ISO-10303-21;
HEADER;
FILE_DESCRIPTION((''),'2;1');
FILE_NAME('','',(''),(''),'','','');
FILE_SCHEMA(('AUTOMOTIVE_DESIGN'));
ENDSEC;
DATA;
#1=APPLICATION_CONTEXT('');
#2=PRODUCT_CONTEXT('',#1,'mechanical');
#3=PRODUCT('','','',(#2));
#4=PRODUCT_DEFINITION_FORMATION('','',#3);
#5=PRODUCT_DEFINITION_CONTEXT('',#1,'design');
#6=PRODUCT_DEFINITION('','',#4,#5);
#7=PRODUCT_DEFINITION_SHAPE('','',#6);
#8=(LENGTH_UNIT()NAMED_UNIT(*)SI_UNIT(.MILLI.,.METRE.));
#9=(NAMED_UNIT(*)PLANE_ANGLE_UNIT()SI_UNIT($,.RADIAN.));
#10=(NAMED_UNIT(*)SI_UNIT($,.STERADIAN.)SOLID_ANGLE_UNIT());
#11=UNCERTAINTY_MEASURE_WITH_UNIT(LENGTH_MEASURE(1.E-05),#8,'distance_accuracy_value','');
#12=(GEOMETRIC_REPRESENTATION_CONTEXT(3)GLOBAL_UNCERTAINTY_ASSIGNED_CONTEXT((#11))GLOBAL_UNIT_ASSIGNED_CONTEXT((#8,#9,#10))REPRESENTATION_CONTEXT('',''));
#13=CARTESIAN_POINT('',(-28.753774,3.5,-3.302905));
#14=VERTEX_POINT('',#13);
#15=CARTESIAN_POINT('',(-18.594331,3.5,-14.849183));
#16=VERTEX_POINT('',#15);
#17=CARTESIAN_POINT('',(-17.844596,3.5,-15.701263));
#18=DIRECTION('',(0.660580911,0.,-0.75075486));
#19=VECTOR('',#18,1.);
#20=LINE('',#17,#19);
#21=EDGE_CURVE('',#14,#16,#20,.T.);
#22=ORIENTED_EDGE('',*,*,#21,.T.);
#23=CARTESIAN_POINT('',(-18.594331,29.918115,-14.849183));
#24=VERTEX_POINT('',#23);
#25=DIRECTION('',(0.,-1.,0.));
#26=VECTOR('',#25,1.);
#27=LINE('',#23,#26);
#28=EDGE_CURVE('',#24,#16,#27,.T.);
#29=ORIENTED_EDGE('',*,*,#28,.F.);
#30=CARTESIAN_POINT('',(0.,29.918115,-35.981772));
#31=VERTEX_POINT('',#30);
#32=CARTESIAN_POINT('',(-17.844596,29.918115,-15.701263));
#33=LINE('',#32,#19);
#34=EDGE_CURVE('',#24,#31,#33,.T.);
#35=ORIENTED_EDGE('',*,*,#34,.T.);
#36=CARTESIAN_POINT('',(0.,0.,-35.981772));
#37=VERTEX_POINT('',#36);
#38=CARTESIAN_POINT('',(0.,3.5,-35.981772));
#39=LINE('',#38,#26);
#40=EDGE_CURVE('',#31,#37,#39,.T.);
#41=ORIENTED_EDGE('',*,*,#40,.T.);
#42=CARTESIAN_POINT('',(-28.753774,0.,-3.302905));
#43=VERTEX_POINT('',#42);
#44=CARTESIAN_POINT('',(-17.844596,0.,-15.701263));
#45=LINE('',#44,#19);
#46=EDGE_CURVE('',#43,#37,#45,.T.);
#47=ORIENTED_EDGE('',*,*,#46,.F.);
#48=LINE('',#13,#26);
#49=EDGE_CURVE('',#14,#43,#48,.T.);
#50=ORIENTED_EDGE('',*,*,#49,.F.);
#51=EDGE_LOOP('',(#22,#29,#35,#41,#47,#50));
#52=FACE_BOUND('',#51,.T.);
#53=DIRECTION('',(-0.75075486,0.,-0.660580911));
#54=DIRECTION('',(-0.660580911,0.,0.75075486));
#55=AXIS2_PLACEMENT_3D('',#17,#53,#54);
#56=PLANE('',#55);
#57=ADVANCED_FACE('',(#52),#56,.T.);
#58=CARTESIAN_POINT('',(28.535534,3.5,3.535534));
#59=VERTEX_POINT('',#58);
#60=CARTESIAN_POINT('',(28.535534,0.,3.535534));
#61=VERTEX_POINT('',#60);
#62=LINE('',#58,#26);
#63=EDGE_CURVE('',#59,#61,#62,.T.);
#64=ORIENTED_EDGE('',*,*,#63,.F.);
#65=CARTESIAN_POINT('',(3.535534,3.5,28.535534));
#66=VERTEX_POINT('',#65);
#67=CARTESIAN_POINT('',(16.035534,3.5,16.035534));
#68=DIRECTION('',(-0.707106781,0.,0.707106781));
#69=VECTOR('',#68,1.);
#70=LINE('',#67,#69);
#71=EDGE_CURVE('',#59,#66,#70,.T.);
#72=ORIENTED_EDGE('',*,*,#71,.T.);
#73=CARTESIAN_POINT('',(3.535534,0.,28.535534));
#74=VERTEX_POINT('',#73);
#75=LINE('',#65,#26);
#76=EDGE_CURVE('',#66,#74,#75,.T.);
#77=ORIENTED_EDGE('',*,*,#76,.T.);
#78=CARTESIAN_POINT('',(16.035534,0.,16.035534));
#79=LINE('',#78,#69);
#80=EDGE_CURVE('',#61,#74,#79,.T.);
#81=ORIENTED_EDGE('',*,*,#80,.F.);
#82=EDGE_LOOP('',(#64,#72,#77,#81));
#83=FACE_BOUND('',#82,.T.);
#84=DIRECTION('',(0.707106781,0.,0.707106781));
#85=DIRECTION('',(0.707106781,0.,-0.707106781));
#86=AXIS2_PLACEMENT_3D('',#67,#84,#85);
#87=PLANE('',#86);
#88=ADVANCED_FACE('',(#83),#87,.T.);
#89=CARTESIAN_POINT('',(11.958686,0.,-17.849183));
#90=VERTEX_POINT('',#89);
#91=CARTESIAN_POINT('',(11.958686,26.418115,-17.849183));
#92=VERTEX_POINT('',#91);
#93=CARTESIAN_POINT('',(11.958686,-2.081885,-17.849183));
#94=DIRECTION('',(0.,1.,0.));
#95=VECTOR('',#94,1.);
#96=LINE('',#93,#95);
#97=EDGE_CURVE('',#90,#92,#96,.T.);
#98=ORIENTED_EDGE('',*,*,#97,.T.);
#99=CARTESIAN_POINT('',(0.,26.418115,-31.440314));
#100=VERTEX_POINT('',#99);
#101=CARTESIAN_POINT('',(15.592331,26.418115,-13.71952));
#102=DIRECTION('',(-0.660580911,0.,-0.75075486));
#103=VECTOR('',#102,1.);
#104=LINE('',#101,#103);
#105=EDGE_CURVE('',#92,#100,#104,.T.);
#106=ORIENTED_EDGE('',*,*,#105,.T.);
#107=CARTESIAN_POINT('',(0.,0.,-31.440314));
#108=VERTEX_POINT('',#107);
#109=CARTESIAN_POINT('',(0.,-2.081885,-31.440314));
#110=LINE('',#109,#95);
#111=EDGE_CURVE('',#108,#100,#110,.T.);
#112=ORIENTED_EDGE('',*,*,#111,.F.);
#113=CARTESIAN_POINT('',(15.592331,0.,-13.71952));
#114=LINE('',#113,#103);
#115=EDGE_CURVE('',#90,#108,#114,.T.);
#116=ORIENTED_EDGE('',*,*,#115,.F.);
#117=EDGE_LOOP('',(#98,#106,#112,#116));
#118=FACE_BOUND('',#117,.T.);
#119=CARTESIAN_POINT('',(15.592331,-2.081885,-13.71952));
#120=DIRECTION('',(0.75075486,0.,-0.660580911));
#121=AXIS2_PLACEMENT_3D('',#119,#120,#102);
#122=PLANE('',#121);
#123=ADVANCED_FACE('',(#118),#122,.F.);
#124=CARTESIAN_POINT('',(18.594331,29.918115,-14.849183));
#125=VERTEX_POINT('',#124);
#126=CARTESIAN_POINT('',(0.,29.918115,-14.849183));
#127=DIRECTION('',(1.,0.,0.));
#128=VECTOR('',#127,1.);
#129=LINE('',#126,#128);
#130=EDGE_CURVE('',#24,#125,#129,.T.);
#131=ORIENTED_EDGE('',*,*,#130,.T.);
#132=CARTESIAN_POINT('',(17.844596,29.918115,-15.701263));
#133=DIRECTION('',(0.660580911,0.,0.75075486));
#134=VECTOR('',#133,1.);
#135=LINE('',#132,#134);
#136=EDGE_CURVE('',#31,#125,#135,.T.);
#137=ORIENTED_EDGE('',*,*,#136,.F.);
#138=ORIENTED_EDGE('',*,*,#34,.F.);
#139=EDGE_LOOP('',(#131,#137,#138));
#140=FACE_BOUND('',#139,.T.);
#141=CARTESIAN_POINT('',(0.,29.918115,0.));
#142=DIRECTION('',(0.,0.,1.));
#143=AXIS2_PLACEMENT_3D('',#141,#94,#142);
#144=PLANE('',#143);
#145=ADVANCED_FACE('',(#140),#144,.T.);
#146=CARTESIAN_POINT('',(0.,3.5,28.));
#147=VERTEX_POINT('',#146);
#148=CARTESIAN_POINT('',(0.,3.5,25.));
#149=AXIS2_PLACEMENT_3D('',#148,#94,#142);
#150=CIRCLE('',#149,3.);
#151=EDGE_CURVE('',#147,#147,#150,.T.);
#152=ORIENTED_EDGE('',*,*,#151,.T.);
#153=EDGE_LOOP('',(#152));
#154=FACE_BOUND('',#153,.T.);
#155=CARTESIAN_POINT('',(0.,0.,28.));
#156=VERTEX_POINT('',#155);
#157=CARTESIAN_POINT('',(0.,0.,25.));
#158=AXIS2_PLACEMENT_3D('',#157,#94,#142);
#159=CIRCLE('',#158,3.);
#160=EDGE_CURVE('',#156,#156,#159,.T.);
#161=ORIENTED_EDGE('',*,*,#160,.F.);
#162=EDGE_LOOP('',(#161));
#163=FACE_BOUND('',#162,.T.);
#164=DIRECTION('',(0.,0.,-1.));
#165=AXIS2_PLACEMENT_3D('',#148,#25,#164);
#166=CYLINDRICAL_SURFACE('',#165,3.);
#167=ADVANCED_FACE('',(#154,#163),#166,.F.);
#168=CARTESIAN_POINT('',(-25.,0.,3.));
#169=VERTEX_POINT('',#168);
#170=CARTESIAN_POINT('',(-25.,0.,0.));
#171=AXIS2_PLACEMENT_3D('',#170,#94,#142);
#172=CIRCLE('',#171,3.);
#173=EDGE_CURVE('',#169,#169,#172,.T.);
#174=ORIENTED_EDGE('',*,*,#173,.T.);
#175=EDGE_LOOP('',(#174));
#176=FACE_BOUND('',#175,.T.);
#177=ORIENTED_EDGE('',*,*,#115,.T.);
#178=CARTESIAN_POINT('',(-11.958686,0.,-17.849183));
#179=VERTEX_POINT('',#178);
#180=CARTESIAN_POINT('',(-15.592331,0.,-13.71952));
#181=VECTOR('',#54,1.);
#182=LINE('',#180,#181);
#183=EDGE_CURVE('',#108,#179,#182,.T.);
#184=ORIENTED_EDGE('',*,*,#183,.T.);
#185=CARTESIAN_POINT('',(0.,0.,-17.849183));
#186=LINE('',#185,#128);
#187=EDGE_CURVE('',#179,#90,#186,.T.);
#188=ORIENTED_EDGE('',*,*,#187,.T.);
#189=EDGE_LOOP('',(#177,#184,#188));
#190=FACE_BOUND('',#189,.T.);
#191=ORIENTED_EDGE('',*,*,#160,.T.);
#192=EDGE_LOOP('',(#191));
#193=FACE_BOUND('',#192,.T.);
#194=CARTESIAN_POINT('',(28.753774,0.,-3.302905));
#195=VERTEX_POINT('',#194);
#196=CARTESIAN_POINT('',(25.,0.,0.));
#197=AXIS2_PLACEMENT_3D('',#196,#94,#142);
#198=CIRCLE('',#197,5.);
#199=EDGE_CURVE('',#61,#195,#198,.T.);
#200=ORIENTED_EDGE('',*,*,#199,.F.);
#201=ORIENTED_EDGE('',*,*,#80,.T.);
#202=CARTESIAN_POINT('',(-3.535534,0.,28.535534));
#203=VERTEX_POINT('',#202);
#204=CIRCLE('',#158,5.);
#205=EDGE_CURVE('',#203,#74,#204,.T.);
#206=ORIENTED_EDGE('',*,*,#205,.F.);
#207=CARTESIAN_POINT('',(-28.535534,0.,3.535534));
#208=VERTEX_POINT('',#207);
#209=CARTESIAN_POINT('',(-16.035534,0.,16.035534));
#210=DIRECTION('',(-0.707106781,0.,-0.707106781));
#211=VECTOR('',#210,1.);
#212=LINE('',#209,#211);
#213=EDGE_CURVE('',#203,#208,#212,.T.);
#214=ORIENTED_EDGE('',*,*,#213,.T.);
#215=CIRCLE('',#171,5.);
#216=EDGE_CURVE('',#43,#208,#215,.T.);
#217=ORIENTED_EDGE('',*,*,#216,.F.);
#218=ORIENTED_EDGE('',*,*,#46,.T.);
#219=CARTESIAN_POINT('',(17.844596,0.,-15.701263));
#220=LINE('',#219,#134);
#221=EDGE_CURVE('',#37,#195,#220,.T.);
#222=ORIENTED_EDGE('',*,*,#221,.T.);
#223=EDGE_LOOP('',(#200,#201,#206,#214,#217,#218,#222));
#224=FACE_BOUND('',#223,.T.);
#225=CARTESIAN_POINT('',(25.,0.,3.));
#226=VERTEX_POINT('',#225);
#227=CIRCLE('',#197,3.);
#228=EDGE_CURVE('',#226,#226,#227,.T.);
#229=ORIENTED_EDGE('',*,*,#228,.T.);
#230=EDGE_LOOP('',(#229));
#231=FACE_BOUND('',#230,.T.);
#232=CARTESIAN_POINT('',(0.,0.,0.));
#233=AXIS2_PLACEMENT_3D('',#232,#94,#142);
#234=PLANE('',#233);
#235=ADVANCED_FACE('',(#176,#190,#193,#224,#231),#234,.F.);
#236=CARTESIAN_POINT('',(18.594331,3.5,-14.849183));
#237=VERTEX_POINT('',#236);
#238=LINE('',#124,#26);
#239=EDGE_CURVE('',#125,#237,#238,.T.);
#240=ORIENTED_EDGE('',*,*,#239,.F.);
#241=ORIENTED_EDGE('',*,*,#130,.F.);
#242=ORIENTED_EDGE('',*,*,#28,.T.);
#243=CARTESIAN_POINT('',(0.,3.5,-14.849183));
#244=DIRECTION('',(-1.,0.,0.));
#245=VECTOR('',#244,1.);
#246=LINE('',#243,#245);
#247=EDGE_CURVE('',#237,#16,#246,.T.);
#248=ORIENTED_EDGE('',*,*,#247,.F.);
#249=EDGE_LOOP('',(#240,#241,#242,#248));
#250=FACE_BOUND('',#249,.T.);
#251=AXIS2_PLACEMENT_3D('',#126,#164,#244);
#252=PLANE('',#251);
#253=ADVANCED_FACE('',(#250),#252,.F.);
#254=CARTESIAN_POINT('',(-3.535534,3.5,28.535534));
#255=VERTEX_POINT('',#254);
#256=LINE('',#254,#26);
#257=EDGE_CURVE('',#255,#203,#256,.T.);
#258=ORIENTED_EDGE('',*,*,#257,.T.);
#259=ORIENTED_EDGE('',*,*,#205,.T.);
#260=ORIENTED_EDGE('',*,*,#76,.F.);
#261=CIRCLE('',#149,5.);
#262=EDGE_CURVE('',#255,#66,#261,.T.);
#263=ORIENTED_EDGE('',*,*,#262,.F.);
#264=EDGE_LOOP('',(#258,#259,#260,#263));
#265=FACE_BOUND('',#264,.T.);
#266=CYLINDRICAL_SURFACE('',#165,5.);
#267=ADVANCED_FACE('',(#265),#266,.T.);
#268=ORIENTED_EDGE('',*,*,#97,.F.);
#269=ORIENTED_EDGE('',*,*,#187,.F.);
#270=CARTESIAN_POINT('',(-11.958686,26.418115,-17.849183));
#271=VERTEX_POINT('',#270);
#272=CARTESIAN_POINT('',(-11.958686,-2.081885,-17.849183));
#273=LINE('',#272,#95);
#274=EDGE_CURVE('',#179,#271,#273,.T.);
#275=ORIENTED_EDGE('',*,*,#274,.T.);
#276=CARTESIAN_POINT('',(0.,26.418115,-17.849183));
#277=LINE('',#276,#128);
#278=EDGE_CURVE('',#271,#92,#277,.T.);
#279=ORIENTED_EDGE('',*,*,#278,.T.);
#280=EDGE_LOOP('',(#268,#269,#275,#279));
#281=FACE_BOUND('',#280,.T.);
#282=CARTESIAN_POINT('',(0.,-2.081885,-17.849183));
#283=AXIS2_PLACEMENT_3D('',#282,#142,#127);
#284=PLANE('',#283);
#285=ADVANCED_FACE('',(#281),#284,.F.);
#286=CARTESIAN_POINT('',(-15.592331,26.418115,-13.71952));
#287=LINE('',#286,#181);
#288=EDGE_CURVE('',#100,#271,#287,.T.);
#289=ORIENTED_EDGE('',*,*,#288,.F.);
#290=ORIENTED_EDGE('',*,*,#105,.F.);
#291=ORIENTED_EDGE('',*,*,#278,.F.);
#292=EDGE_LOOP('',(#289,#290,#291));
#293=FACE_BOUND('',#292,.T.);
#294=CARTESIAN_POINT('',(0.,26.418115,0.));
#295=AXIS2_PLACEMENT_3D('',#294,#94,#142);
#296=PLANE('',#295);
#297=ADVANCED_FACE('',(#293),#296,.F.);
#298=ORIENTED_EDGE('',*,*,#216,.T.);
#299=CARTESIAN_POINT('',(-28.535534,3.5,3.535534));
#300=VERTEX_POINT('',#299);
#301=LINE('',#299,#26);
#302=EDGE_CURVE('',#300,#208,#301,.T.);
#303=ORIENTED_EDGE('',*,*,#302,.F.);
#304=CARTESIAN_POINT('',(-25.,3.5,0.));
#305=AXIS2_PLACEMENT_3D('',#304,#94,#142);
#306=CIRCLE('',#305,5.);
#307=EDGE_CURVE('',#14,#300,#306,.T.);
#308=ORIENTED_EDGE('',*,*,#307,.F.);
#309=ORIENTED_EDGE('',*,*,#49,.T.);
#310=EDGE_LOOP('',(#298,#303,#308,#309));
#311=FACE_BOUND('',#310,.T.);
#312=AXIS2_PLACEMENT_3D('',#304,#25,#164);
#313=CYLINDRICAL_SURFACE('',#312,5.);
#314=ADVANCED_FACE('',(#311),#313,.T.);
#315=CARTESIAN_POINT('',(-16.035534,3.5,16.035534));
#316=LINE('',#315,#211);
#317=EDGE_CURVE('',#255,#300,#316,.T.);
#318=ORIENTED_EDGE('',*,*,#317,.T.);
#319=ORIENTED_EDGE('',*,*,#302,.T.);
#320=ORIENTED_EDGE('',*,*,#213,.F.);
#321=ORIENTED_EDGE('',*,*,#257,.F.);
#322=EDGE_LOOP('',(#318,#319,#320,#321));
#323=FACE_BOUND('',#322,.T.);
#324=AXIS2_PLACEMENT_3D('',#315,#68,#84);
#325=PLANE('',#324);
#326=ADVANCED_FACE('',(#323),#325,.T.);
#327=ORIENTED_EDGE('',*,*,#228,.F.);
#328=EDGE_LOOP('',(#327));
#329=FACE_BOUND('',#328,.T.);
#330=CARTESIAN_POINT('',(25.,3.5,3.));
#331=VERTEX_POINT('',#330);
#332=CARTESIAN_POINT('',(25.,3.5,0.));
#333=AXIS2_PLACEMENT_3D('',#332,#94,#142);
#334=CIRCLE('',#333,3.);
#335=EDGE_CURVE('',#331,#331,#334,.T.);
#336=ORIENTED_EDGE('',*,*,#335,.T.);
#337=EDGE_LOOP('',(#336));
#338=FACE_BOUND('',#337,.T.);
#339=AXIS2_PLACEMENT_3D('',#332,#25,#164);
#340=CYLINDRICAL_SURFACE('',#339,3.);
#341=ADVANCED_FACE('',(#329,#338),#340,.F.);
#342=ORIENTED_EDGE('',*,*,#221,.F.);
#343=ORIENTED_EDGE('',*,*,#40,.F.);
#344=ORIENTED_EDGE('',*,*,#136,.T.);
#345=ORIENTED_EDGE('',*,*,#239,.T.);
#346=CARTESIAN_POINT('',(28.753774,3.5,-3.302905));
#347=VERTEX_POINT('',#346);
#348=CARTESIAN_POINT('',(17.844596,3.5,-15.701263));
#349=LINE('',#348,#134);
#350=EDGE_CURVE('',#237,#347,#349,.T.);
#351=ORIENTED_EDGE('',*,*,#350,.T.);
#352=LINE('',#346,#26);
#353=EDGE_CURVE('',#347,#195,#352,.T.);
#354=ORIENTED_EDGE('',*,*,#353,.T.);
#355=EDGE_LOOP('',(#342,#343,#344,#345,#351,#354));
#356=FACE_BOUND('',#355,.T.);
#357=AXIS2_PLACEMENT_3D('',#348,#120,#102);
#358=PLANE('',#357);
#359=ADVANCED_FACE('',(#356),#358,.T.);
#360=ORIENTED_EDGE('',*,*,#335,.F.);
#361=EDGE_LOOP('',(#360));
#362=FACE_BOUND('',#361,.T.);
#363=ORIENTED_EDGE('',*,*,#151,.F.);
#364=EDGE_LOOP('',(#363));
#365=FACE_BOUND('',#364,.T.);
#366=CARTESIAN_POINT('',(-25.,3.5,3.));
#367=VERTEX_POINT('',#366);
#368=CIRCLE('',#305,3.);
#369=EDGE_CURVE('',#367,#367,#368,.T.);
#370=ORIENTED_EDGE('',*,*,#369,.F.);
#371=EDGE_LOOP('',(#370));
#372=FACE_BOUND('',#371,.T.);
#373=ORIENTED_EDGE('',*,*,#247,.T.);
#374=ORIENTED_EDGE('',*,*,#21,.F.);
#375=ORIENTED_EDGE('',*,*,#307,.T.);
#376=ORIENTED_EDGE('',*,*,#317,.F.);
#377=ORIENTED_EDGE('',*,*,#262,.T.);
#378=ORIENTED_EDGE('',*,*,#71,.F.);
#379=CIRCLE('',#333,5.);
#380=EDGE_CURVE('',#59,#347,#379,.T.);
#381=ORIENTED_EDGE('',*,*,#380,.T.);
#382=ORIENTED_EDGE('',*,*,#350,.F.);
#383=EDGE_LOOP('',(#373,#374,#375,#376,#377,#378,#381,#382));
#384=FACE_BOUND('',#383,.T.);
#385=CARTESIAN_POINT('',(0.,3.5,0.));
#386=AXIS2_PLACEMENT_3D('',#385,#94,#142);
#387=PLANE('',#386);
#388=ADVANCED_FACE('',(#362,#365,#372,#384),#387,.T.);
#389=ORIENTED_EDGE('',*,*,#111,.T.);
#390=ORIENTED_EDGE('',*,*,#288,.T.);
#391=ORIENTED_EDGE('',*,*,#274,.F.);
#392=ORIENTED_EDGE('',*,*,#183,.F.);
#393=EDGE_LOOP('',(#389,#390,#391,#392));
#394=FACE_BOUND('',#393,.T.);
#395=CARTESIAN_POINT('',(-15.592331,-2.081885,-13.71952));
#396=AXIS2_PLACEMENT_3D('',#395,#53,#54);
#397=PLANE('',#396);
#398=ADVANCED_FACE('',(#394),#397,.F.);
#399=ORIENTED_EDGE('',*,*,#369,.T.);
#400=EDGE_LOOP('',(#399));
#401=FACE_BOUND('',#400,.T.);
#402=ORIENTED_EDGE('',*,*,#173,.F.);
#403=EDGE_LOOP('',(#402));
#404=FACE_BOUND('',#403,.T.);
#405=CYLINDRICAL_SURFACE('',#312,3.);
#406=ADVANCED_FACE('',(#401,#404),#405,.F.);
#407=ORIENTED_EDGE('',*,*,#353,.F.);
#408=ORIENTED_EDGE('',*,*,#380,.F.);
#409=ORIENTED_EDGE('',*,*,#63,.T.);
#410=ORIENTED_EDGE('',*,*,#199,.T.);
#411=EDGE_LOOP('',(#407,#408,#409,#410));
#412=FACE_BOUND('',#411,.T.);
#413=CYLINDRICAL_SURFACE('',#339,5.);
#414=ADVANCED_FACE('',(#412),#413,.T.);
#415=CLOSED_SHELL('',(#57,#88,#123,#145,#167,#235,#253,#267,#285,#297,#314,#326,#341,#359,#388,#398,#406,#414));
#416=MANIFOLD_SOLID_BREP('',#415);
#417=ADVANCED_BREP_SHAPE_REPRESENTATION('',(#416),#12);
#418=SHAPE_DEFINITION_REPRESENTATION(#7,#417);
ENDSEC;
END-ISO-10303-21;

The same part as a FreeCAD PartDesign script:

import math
import FreeCAD as App
import Part
import Sketcher
from FreeCAD import Vector

doc = App.newDocument("Part")
body = doc.addObject("PartDesign::Body", "Body")

sketch1 = doc.addObject("Sketcher::SketchObject", "Sketch")
body.addObject(sketch1)
sketch1.AttachmentSupport = (doc.XZ_Plane, [""])
sketch1.MapMode = "FlatFace"
sketch1.addGeometry(Part.LineSegment(Vector(-18.594331, -14.849183, 0), Vector(-28.753774, -3.302905, 0)), False)
sketch1.addGeometry(Part.ArcOfCircle(Part.Circle(Vector(-25, 0, 0), Vector(0, 0, 1), 5), math.radians(135), math.radians(221.344191)), False)
sketch1.addGeometry(Part.LineSegment(Vector(-28.535534, 3.535534, 0), Vector(-3.535534, 28.535534, 0)), False)
sketch1.addGeometry(Part.ArcOfCircle(Part.Circle(Vector(0, 25, 0), Vector(0, 0, 1), 5), math.radians(45), math.radians(135)), False)
sketch1.addGeometry(Part.LineSegment(Vector(3.535534, 28.535534, 0), Vector(28.535534, 3.535534, 0)), False)
sketch1.addGeometry(Part.ArcOfCircle(Part.Circle(Vector(25, 0, 0), Vector(0, 0, 1), 5), math.radians(-41.344191), math.radians(45)), False)
sketch1.addGeometry(Part.LineSegment(Vector(28.753774, -3.302905, 0), Vector(18.594331, -14.849183, 0)), False)
sketch1.addGeometry(Part.LineSegment(Vector(18.594331, -14.849183, 0), Vector(0, -35.981772, 0)), False)
sketch1.addGeometry(Part.LineSegment(Vector(0, -35.981772, 0), Vector(-18.594331, -14.849183, 0)), False)
sketch1.addGeometry(Part.Circle(Vector(-25, 0, 0), Vector(0, 0, 1), 3), False)
sketch1.addGeometry(Part.Circle(Vector(0, 25, 0), Vector(0, 0, 1), 3), False)
sketch1.addGeometry(Part.Circle(Vector(25, 0, 0), Vector(0, 0, 1), 3), False)
sketch1.addConstraint(Sketcher.Constraint("Tangent", 0, 2, 1, 2))
sketch1.addConstraint(Sketcher.Constraint("Tangent", 1, 1, 2, 1))
sketch1.addConstraint(Sketcher.Constraint("Tangent", 2, 2, 3, 2))
sketch1.addConstraint(Sketcher.Constraint("Tangent", 3, 1, 4, 1))
sketch1.addConstraint(Sketcher.Constraint("Tangent", 4, 2, 5, 2))
sketch1.addConstraint(Sketcher.Constraint("Tangent", 5, 1, 6, 1))
sketch1.addConstraint(Sketcher.Constraint("Coincident", 6, 2, 7, 1))
sketch1.addConstraint(Sketcher.Constraint("Coincident", 7, 2, 8, 1))
sketch1.addConstraint(Sketcher.Constraint("Coincident", 8, 2, 0, 1))
sketch1.addConstraint(Sketcher.Constraint("Coincident", 9, 3, 1, 3))
sketch1.addConstraint(Sketcher.Constraint("Coincident", 10, 3, 3, 3))
sketch1.addConstraint(Sketcher.Constraint("Coincident", 11, 3, 5, 3))
sketch1.addConstraint(Sketcher.Constraint("Equal", 1, 3))
sketch1.addConstraint(Sketcher.Constraint("Equal", 3, 5))
sketch1.addConstraint(Sketcher.Constraint("Equal", 9, 10))
sketch1.addConstraint(Sketcher.Constraint("Equal", 10, 11))
sketch1.addConstraint(Sketcher.Constraint("Symmetric", 1, 3, 5, 3, -1, 1))
sketch1.addConstraint(Sketcher.Constraint("Symmetric", 2, 2, 3, 1, -2))
sketch1.addConstraint(Sketcher.Constraint("Symmetric", 6, 2, 8, 2, -2))
sketch1.addConstraint(Sketcher.Constraint("PointOnObject", 7, 2, -2))
sketch1.addConstraint(Sketcher.Constraint("Perpendicular", 2, 4))
sketch1.addConstraint(Sketcher.Constraint("Parallel", 6, 7))
sketch1.addConstraint(Sketcher.Constraint("Diameter", 9, 6.0))
sketch1.addConstraint(Sketcher.Constraint("Radius", 1, 5.0))
sketch1.addConstraint(Sketcher.Constraint("DistanceX", 1, 3, -1, 1, 25.0))
sketch1.addConstraint(Sketcher.Constraint("Distance", 0, 15.379559))
sketch1.addConstraint(Sketcher.Constraint("DistanceX", -1, 1, 6, 2, 18.594331))
pad1 = doc.addObject("PartDesign::Pad", "Pad")
body.addObject(pad1)
pad1.Profile = sketch1
pad1.Length = 3.5
pad1.Reversed = True

sketch2 = doc.addObject("Sketcher::SketchObject", "Sketch001")
body.addObject(sketch2)
sketch2.AttachmentSupport = (doc.XZ_Plane, [""])
sketch2.MapMode = "FlatFace"
sketch2.addGeometry(Part.LineSegment(Vector(0, -35.981772, 0), Vector(-18.594331, -14.849183, 0)), False)
sketch2.addGeometry(Part.LineSegment(Vector(-18.594331, -14.849183, 0), Vector(18.594331, -14.849183, 0)), False)
sketch2.addGeometry(Part.LineSegment(Vector(18.594331, -14.849183, 0), Vector(0, -35.981772, 0)), False)
sketch2.addConstraint(Sketcher.Constraint("Coincident", 0, 2, 1, 1))
sketch2.addConstraint(Sketcher.Constraint("Coincident", 1, 2, 2, 1))
sketch2.addConstraint(Sketcher.Constraint("Coincident", 2, 2, 0, 1))
sketch2.addConstraint(Sketcher.Constraint("Horizontal", 1))
sketch2.addConstraint(Sketcher.Constraint("PointOnObject", 2, 2, -2))
sketch2.addConstraint(Sketcher.Constraint("Equal", 0, 2))
sketch2.addConstraint(Sketcher.Constraint("DistanceX", 1, 1, 1, 2, 37.188662))
sketch2.addConstraint(Sketcher.Constraint("DistanceY", 2, 2, -1, 1, 35.981772))
sketch2.addConstraint(Sketcher.Constraint("DistanceY", 2, 2, 0, 2, 21.132588))
pad2 = doc.addObject("PartDesign::Pad", "Pad001")
body.addObject(pad2)
pad2.Profile = sketch2
pad2.Length = 29.918115
pad2.Reversed = True

sketch3 = doc.addObject("Sketcher::SketchObject", "Sketch002")
body.addObject(sketch3)
sketch3.AttachmentSupport = (doc.XZ_Plane, [""])
sketch3.MapMode = "FlatFace"
sketch3.AttachmentOffset = App.Placement(Vector(0, 0, -26.418115), App.Rotation())
sketch3.addGeometry(Part.LineSegment(Vector(-11.958686, -17.849183, 0), Vector(11.958686, -17.849183, 0)), False)
sketch3.addGeometry(Part.LineSegment(Vector(11.958686, -17.849183, 0), Vector(0, -31.440314, 0)), False)
sketch3.addGeometry(Part.LineSegment(Vector(0, -31.440314, 0), Vector(-11.958686, -17.849183, 0)), False)
sketch3.addConstraint(Sketcher.Constraint("Coincident", 0, 2, 1, 1))
sketch3.addConstraint(Sketcher.Constraint("Coincident", 1, 2, 2, 1))
sketch3.addConstraint(Sketcher.Constraint("Coincident", 2, 2, 0, 1))
sketch3.addConstraint(Sketcher.Constraint("Horizontal", 0))
sketch3.addConstraint(Sketcher.Constraint("PointOnObject", 1, 2, -2))
sketch3.addConstraint(Sketcher.Constraint("Equal", 1, 2))
sketch3.addConstraint(Sketcher.Constraint("DistanceX", 0, 1, 0, 2, 23.917372))
sketch3.addConstraint(Sketcher.Constraint("DistanceY", 1, 2, 0, 2, 13.591131))
sketch3.addConstraint(Sketcher.Constraint("DistanceY", 0, 2, -1, 1, 17.849183))
pocket1 = doc.addObject("PartDesign::Pocket", "Pocket")
body.addObject(pocket1)
pocket1.Profile = sketch3
pocket1.Length = 28.5
pocket1.Reversed = True

doc.recompute()
